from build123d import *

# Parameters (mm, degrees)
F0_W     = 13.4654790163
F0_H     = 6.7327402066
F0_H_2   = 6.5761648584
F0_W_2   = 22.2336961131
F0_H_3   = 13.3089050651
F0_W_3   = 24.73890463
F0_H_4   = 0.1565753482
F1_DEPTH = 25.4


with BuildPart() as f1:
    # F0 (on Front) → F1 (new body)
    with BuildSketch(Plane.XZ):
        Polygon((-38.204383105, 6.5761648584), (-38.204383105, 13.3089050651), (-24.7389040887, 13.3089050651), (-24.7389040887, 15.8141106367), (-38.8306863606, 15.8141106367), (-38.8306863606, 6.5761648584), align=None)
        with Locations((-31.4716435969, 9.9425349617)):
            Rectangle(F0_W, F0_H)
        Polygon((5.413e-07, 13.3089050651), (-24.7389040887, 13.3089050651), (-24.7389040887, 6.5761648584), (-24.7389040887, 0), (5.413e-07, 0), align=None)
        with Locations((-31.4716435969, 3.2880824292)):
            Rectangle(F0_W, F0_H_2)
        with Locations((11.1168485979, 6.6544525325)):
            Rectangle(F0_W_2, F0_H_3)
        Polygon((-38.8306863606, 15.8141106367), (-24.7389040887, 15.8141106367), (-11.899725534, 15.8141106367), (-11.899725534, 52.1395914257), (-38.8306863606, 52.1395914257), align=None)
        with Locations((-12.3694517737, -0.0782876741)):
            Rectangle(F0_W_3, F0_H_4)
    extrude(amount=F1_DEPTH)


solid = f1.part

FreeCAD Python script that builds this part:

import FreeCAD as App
import Part
import Sketcher

V = App.Vector
Q = App.Units.Quantity

doc = App.newDocument("Part")
body = doc.addObject("PartDesign::Body", "Body")

sketch1 = body.newObject("Sketcher::SketchObject", "Sketch")
sketch1.AttachmentSupport = (doc.getObject("XZ_Plane"), [""])
sketch1.MapMode = "FlatFace"
sketch1.addGeometry(Part.LineSegment(V(-24.74, 13.31, 0), V(-24.74, 15.81, 0)), False)
sketch1.addGeometry(Part.LineSegment(V(-24.74, 15.81, 0), V(-11.9, 15.81, 0)), False)
sketch1.addGeometry(Part.LineSegment(V(-11.9, 15.81, 0), V(-11.9, 52.14, 0)), False)
sketch1.addGeometry(Part.LineSegment(V(-11.9, 52.14, 0), V(-38.83, 52.14, 0)), False)
sketch1.addGeometry(Part.LineSegment(V(-38.83, 52.14, 0), V(-38.83, 6.58, 0)), False)
sketch1.addGeometry(Part.LineSegment(V(-38.83, 6.58, 0), V(-38.2, 6.58, 0)), False)
sketch1.addGeometry(Part.LineSegment(V(-38.2, 6.58, 0), V(-38.2, 0, 0)), False)
sketch1.addGeometry(Part.LineSegment(V(-38.2, 0, 0), V(-24.74, 0, 0)), False)
sketch1.addGeometry(Part.LineSegment(V(-24.74, 0, 0), V(-24.74, -0.16, 0)), False)
sketch1.addGeometry(Part.LineSegment(V(-24.74, -0.16, 0), V(0, -0.16, 0)), False)
sketch1.addGeometry(Part.LineSegment(V(0, -0.16, 0), V(0, 0, 0)), False)
sketch1.addGeometry(Part.LineSegment(V(0, 0, 0), V(22.23, 0, 0)), False)
sketch1.addGeometry(Part.LineSegment(V(22.23, 0, 0), V(22.23, 13.31, 0)), False)
sketch1.addGeometry(Part.LineSegment(V(22.23, 13.31, 0), V(0, 13.31, 0)), False)
sketch1.addGeometry(Part.LineSegment(V(0, 13.31, 0), V(-24.74, 13.31, 0)), False)
sketch1.addConstraint(Sketcher.Constraint("Coincident", 0, 2, 1, 1))
sketch1.addConstraint(Sketcher.Constraint("Coincident", 1, 2, 2, 1))
sketch1.addConstraint(Sketcher.Constraint("Coincident", 2, 2, 3, 1))
sketch1.addConstraint(Sketcher.Constraint("Coincident", 3, 2, 4, 1))
sketch1.addConstraint(Sketcher.Constraint("Coincident", 4, 2, 5, 1))
sketch1.addConstraint(Sketcher.Constraint("Coincident", 5, 2, 6, 1))
sketch1.addConstraint(Sketcher.Constraint("Coincident", 6, 2, 7, 1))
sketch1.addConstraint(Sketcher.Constraint("Coincident", 7, 2, 8, 1))
sketch1.addConstraint(Sketcher.Constraint("Coincident", 8, 2, 9, 1))
sketch1.addConstraint(Sketcher.Constraint("Coincident", 9, 2, 10, 1))
sketch1.addConstraint(Sketcher.Constraint("Coincident", 10, 2, 11, 1))
sketch1.addConstraint(Sketcher.Constraint("Coincident", 11, 2, 12, 1))
sketch1.addConstraint(Sketcher.Constraint("Coincident", 12, 2, 13, 1))
sketch1.addConstraint(Sketcher.Constraint("Coincident", 13, 2, 14, 1))
sketch1.addConstraint(Sketcher.Constraint("Coincident", 14, 2, 0, 1))
sketch1.addConstraint(Sketcher.Constraint("Vertical", 0))
sketch1.addConstraint(Sketcher.Constraint("Horizontal", 1))
sketch1.addConstraint(Sketcher.Constraint("Vertical", 2))
sketch1.addConstraint(Sketcher.Constraint("Horizontal", 3))
sketch1.addConstraint(Sketcher.Constraint("Vertical", 4))
sketch1.addConstraint(Sketcher.Constraint("Horizontal", 5))
sketch1.addConstraint(Sketcher.Constraint("Vertical", 6))
sketch1.addConstraint(Sketcher.Constraint("Horizontal", 7))
sketch1.addConstraint(Sketcher.Constraint("Vertical", 8))
sketch1.addConstraint(Sketcher.Constraint("Horizontal", 9))
sketch1.addConstraint(Sketcher.Constraint("Vertical", 10))
sketch1.addConstraint(Sketcher.Constraint("Horizontal", 11))
sketch1.addConstraint(Sketcher.Constraint("Vertical", 12))
sketch1.addConstraint(Sketcher.Constraint("Horizontal", 13))
sketch1.addConstraint(Sketcher.Constraint("Horizontal", 14))
sketch1.addConstraint(Sketcher.Constraint("Coincident", 10, 2, -1, 1))
sketch1.addConstraint(Sketcher.Constraint("PointOnObject", 6, 2, -1))
sketch1.addConstraint(Sketcher.Constraint("PointOnObject", 13, 2, -2))
sketch1.addConstraint(Sketcher.Constraint("Vertical", 0, 2, 7, 2))
sketch1.addConstraint(Sketcher.Constraint("DistanceX", 1, 1, 1, 2, Q("12.839179 mm")))
sketch1.addConstraint(Sketcher.Constraint("DistanceX", 3, 2, 3, 1, Q("26.930961 mm")))
sketch1.addConstraint(Sketcher.Constraint("DistanceX", 7, 1, 7, 2, Q("13.465479 mm")))
sketch1.addConstraint(Sketcher.Constraint("DistanceY", 2, 1, 2, 2, Q("36.325481 mm")))
sketch1.addConstraint(Sketcher.Constraint("DistanceX", 7, 2, 11, 2, Q("46.972601 mm")))
sketch1.addConstraint(Sketcher.Constraint("DistanceX", 9, 1, 9, 2, Q("24.738905 mm")))
sketch1.addConstraint(Sketcher.Constraint("DistanceY", 0, 1, 0, 2, Q("2.505206 mm")))
sketch1.addConstraint(Sketcher.Constraint("DistanceY", 4, 2, 4, 1, Q("45.563427 mm")))
sketch1.addConstraint(Sketcher.Constraint("DistanceY", 6, 2, 6, 1, Q("6.576165 mm")))
sketch1.addConstraint(Sketcher.Constraint("DistanceY", 8, 2, 8, 1, Q("0.156575 mm")))
pad1 = body.newObject("PartDesign::Pad", "Pad")
pad1.Profile = sketch1
pad1.Length = Q("1 in")

doc.recompute()
